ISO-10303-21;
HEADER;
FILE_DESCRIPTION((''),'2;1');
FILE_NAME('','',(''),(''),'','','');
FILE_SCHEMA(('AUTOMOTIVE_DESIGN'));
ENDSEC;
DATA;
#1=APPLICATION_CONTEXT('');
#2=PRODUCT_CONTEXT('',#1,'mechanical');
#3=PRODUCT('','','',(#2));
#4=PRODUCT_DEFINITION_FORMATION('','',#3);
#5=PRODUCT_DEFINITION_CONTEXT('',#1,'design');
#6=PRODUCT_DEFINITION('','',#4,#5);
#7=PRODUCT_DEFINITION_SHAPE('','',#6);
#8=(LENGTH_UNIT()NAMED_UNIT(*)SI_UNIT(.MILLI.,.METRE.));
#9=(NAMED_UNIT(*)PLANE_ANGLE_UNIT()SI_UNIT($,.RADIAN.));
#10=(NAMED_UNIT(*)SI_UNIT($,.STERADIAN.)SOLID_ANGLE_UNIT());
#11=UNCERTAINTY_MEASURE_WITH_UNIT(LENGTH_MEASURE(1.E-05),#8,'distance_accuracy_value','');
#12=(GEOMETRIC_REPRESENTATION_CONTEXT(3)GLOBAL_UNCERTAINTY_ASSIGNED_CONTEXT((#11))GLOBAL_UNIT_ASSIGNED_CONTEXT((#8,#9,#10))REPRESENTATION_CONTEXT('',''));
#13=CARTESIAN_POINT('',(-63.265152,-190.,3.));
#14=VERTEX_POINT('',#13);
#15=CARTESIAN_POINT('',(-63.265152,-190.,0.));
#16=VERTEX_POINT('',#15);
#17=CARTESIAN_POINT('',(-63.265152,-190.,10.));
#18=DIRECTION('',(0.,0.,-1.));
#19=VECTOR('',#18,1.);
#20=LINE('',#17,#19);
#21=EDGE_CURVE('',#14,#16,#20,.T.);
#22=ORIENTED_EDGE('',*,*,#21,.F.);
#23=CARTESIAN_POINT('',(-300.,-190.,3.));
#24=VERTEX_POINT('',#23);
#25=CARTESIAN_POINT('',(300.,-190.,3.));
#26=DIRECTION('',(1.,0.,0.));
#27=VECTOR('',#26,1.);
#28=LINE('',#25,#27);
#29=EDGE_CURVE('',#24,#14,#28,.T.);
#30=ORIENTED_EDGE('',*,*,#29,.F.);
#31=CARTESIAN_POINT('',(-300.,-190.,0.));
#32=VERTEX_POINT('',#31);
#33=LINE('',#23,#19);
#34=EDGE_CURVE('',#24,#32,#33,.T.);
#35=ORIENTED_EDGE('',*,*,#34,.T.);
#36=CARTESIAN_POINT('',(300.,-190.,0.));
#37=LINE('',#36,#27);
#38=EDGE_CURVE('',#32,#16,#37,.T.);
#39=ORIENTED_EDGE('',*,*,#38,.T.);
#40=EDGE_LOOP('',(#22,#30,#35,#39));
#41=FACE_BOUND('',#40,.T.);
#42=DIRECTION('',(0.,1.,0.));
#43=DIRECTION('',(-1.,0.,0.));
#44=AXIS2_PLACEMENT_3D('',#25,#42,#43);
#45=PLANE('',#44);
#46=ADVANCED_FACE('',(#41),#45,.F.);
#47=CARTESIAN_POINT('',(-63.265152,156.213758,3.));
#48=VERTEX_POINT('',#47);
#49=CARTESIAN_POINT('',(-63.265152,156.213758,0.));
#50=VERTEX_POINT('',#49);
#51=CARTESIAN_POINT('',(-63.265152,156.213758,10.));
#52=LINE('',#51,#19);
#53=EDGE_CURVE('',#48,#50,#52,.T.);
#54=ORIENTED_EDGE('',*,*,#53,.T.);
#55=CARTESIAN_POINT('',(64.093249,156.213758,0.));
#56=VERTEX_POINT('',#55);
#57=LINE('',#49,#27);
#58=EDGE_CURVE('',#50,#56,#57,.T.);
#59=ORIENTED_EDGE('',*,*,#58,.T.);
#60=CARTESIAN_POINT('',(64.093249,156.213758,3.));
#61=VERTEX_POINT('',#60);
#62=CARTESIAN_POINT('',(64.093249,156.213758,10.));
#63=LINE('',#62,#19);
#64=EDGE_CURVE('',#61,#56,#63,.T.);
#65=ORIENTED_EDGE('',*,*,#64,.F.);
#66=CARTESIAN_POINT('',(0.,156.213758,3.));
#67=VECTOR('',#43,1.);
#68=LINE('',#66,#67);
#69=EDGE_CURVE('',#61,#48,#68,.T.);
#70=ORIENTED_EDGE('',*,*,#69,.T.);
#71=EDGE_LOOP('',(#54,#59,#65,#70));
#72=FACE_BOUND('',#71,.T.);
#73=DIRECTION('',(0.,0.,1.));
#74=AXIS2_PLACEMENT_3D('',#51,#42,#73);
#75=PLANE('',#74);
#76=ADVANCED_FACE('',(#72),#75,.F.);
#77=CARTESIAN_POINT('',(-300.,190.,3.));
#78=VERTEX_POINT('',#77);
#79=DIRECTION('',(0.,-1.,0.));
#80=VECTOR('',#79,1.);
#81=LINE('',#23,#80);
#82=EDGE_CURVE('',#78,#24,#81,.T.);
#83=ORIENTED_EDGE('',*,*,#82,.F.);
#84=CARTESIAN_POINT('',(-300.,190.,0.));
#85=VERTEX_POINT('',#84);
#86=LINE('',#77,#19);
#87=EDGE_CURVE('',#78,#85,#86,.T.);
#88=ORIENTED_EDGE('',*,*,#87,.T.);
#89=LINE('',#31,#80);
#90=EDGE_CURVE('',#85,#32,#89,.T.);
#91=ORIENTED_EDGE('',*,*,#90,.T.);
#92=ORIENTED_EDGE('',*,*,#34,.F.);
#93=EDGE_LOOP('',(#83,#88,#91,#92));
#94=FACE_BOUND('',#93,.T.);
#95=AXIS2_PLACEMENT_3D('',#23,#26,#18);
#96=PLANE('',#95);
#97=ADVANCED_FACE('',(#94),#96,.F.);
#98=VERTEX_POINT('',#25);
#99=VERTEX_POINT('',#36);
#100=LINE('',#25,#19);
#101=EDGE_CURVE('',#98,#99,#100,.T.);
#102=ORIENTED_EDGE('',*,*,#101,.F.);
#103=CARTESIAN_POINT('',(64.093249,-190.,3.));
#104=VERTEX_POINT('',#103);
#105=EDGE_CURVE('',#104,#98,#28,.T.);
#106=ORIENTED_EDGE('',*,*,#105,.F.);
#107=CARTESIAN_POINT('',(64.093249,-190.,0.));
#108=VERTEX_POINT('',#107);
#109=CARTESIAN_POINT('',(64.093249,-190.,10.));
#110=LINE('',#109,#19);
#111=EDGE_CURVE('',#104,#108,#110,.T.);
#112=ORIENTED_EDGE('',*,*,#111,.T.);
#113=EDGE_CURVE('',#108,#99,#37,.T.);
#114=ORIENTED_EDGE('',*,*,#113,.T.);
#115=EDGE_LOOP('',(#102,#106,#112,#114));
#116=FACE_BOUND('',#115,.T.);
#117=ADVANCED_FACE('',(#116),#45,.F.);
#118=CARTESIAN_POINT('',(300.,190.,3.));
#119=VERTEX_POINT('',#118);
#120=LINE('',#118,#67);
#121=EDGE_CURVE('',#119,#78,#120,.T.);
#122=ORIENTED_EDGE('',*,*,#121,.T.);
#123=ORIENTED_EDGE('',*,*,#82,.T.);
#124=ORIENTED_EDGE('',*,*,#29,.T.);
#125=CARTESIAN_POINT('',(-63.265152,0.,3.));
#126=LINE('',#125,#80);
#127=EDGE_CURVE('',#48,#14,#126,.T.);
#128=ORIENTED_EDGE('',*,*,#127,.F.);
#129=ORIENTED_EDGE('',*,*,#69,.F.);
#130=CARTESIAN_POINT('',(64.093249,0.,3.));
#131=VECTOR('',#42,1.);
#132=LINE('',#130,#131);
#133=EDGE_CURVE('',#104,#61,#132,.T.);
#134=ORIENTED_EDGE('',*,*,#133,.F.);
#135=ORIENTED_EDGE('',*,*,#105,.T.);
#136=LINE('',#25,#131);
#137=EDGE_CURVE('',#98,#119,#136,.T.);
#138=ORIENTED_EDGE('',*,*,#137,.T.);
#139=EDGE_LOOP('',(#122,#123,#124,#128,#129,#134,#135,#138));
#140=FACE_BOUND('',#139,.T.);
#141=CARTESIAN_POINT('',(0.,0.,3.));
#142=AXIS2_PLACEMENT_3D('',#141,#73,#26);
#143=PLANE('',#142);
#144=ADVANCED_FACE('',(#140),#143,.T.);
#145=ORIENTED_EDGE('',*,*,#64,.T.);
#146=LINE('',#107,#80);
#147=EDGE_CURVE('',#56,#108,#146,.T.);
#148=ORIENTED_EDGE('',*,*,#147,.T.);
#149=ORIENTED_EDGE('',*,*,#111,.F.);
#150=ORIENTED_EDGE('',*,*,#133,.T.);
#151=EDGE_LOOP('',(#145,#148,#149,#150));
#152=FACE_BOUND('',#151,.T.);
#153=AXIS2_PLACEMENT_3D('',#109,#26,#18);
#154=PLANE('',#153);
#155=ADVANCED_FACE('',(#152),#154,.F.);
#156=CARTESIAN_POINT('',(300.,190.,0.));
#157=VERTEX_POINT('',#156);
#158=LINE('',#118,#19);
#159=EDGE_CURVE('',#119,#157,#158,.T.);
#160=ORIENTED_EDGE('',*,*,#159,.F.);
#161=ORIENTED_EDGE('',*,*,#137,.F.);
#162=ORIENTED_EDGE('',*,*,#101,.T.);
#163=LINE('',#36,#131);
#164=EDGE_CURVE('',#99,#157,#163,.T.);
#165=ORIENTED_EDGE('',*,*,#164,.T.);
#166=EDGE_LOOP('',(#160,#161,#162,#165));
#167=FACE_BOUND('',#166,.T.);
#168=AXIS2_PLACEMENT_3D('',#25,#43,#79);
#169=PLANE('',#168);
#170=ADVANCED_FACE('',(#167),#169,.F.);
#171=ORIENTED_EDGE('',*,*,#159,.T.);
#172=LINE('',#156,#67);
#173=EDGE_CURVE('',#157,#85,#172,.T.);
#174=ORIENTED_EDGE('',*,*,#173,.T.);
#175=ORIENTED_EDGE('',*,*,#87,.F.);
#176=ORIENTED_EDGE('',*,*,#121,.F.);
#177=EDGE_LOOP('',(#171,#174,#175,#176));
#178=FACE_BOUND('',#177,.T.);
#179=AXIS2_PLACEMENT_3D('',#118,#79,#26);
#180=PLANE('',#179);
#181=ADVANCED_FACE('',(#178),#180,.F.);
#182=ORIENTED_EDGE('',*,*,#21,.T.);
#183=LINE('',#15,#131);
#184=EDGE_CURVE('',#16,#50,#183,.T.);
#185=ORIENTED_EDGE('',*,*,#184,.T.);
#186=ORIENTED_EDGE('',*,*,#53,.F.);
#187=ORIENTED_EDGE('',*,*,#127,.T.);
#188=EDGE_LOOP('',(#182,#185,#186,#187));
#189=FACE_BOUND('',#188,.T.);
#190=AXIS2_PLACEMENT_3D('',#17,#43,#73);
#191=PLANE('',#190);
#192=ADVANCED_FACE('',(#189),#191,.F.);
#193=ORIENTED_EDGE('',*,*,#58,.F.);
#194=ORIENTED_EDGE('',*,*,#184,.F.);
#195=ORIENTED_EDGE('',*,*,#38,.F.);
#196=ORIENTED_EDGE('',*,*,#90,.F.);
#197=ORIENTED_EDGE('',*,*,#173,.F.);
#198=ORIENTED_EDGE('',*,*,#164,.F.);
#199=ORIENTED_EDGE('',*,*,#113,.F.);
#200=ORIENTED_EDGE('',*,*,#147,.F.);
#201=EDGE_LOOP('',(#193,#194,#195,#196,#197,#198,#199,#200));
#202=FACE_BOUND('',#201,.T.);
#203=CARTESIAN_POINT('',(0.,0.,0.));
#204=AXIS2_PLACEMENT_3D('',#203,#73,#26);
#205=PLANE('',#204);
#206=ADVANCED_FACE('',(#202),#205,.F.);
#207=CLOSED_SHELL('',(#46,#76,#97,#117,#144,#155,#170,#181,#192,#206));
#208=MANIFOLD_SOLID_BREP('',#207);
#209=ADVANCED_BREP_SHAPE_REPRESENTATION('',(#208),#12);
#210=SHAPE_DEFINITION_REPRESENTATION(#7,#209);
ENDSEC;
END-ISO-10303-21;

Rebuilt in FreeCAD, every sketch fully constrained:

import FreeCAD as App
import Part
import Sketcher
from FreeCAD import Vector

doc = App.newDocument("Part")
body = doc.addObject("PartDesign::Body", "Body")

sketch1 = body.newObject("Sketcher::SketchObject", "Sketch")
sketch1.AttachmentSupport = (doc.getObject("XY_Plane"), [""])
sketch1.MapMode = "FlatFace"
sketch1.addGeometry(Part.LineSegment(Vector(-300, 190, 0), Vector(-300, -190, 0)), False)
sketch1.addGeometry(Part.LineSegment(Vector(-300, -190, 0), Vector(300, -190, 0)), False)
sketch1.addGeometry(Part.LineSegment(Vector(300, -190, 0), Vector(300, 190, 0)), False)
sketch1.addGeometry(Part.LineSegment(Vector(300, 190, 0), Vector(-300, 190, 0)), False)
sketch1.addConstraint(Sketcher.Constraint("Coincident", 0, 2, 1, 1))
sketch1.addConstraint(Sketcher.Constraint("Coincident", 1, 2, 2, 1))
sketch1.addConstraint(Sketcher.Constraint("Coincident", 2, 2, 3, 1))
sketch1.addConstraint(Sketcher.Constraint("Coincident", 3, 2, 0, 1))
sketch1.addConstraint(Sketcher.Constraint("Vertical", 0))
sketch1.addConstraint(Sketcher.Constraint("Horizontal", 1))
sketch1.addConstraint(Sketcher.Constraint("Vertical", 2))
sketch1.addConstraint(Sketcher.Constraint("Horizontal", 3))
sketch1.addConstraint(Sketcher.Constraint("Symmetric", 0, 2, 2, 2, -1, 1))
sketch1.addConstraint(Sketcher.Constraint("DistanceX", 1, 1, 1, 2, 600.0))
sketch1.addConstraint(Sketcher.Constraint("DistanceY", 0, 2, 0, 1, 380.0))
pad1 = body.newObject("PartDesign::Pad", "Pad")
pad1.Profile = sketch1
pad1.Length = 3

sketch2 = body.newObject("Sketcher::SketchObject", "Sketch001")
sketch2.AttachmentSupport = (doc.getObject("XY_Plane"), [""])
sketch2.MapMode = "FlatFace"
sketch2.addGeometry(Part.LineSegment(Vector(64, 156, 0), Vector(64, -190, 0)), False)
sketch2.addGeometry(Part.LineSegment(Vector(64, -190, 0), Vector(-63, -190, 0)), False)
sketch2.addGeometry(Part.LineSegment(Vector(-63, -190, 0), Vector(-63, 156, 0)), False)
sketch2.addGeometry(Part.LineSegment(Vector(-63, 156, 0), Vector(64, 156, 0)), False)
sketch2.addConstraint(Sketcher.Constraint("Coincident", 0, 2, 1, 1))
sketch2.addConstraint(Sketcher.Constraint("Coincident", 1, 2, 2, 1))
sketch2.addConstraint(Sketcher.Constraint("Coincident", 2, 2, 3, 1))
sketch2.addConstraint(Sketcher.Constraint("Coincident", 3, 2, 0, 1))
sketch2.addConstraint(Sketcher.Constraint("Vertical", 0))
sketch2.addConstraint(Sketcher.Constraint("Horizontal", 1))
sketch2.addConstraint(Sketcher.Constraint("Vertical", 2))
sketch2.addConstraint(Sketcher.Constraint("Horizontal", 3))
sketch2.addConstraint(Sketcher.Constraint("DistanceY", 0, 2, -1, 1, 190.0))
sketch2.addConstraint(Sketcher.Constraint("DistanceX", 1, 2, 1, 1, 127.358401))
sketch2.addConstraint(Sketcher.Constraint("DistanceY", 0, 2, 0, 1, 346.213758))
sketch2.addConstraint(Sketcher.Constraint("DistanceX", -1, 1, 0, 2, 64.093249))
pocket1 = body.newObject("PartDesign::Pocket", "Pocket")
pocket1.Profile = sketch2
pocket1.Length = 10
pocket1.Reversed = True

doc.recompute()
